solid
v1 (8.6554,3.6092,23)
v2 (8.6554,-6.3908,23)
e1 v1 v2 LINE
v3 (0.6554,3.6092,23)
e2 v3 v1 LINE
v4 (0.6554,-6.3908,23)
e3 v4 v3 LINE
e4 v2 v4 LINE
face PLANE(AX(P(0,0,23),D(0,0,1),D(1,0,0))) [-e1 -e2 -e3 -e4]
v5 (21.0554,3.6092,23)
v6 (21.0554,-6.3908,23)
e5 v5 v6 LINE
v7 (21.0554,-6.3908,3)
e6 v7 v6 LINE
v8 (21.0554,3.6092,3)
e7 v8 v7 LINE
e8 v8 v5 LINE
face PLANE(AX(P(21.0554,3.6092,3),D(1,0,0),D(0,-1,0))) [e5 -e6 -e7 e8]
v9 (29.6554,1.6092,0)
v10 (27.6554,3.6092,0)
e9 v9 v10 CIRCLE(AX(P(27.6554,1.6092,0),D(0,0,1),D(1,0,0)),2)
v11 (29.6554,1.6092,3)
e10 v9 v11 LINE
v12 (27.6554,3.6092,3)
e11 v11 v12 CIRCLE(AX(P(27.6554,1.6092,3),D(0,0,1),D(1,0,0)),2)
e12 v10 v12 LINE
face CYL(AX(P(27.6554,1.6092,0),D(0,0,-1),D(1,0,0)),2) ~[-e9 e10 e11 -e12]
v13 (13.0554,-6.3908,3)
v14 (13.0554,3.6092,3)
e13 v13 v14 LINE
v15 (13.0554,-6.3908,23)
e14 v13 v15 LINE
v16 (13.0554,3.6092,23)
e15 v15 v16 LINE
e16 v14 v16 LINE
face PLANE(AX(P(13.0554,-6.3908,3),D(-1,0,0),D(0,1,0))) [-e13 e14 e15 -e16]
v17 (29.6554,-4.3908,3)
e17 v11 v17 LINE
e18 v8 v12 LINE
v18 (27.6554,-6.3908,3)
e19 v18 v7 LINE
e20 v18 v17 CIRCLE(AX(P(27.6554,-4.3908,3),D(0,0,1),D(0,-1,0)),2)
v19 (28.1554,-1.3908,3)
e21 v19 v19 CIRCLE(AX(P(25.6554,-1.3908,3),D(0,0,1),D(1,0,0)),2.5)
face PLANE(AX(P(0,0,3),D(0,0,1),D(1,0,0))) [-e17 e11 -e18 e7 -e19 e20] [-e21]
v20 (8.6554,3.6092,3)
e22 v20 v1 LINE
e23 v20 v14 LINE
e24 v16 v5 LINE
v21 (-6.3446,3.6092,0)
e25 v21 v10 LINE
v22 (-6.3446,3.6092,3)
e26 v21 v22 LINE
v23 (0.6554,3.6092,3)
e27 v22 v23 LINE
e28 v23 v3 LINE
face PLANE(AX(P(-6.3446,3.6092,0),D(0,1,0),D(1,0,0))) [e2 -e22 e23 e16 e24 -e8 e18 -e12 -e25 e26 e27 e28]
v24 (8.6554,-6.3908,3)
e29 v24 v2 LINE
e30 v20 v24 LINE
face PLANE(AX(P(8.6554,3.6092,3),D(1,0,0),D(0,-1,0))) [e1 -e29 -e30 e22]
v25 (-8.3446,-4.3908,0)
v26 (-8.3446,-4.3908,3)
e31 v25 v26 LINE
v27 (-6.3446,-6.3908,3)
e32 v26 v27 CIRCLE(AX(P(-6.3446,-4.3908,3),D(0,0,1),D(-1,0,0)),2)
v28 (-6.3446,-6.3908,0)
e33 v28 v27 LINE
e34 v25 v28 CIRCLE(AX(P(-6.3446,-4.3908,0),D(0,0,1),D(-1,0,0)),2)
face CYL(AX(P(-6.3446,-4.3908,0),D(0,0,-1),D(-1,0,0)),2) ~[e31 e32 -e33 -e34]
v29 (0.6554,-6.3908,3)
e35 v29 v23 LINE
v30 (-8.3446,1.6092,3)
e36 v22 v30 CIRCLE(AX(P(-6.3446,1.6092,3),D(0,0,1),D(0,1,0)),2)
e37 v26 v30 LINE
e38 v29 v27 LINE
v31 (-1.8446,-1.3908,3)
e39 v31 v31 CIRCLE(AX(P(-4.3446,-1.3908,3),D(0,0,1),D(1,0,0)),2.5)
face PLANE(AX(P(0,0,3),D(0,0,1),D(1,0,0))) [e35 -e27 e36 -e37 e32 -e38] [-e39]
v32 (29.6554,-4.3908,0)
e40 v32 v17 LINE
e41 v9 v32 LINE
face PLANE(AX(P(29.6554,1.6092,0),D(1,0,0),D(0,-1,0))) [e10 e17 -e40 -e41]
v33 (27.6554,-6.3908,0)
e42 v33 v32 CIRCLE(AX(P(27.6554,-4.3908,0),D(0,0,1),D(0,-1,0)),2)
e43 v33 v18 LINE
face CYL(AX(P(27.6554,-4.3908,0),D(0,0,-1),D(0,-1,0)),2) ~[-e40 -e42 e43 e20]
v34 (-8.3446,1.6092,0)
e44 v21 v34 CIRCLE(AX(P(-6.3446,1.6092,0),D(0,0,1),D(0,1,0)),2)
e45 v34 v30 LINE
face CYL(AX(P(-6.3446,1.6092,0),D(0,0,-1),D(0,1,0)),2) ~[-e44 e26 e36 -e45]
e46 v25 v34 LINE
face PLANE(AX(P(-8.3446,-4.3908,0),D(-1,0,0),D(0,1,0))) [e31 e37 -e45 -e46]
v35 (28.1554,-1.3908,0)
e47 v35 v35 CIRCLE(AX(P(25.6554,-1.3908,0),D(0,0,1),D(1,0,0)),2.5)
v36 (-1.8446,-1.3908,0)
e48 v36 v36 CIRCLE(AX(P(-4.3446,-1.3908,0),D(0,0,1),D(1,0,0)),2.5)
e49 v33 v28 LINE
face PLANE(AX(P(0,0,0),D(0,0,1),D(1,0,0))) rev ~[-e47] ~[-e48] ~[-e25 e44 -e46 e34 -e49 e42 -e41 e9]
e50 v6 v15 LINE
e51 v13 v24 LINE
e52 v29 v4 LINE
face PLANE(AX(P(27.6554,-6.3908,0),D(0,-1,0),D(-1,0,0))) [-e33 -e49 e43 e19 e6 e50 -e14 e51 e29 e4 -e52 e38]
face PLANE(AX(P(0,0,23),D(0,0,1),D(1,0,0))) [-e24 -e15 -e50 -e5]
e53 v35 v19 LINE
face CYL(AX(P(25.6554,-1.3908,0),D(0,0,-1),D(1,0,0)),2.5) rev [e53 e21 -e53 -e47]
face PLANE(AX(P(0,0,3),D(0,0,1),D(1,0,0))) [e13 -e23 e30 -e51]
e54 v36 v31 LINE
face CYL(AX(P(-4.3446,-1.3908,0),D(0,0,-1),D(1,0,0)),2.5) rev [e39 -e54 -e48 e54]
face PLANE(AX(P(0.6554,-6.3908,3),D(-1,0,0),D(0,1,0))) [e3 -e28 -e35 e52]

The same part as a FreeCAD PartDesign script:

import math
import FreeCAD as App
import Part
import Sketcher
from FreeCAD import Vector
Q = App.Units.Quantity

doc = App.newDocument("Part")
body = doc.addObject("PartDesign::Body", "Body")

# Sketch on XY plane
sketch1 = body.newObject("Sketcher::SketchObject", "Sketch")
sketch1.AttachmentSupport = (doc.getObject("XY_Plane"), [""])
sketch1.MapMode = "FlatFace"
sketch1.addGeometry([
    Part.LineSegment(Vector(27.7, 3.6, 0), Vector(-6.3, 3.6, 0)),  # 0
    Part.ArcOfCircle(Part.Circle(Vector(-6.3, 1.6, 0), Vector(0, 0, 1), 2), math.radians(90), math.radians(180)),  # 1
    Part.LineSegment(Vector(-8.3, 1.6, 0), Vector(-8.3, -4.4, 0)),  # 2
    Part.ArcOfCircle(Part.Circle(Vector(-6.3, -4.4, 0), Vector(0, 0, 1), 2), math.radians(180), math.radians(270)),  # 3
    Part.LineSegment(Vector(-6.3, -6.4, 0), Vector(27.7, -6.4, 0)),  # 4
    Part.ArcOfCircle(Part.Circle(Vector(27.7, -4.4, 0), Vector(0, 0, 1), 2), math.radians(-90), math.radians(0)),  # 5
    Part.LineSegment(Vector(29.7, -4.4, 0), Vector(29.7, 1.6, 0)),  # 6
    Part.ArcOfCircle(Part.Circle(Vector(27.7, 1.6, 0), Vector(0, 0, 1), 2), math.radians(0), math.radians(90)),  # 7
    Part.Circle(Vector(-4.3, -1.4, 0), Vector(0, 0, 1), 2.5),  # 8
    Part.Circle(Vector(25.7, -1.4, 0), Vector(0, 0, 1), 2.5),  # 9
], False)
sketch1.addConstraint([
    Sketcher.Constraint("Tangent", 0, 2, 1, 1),
    Sketcher.Constraint("Tangent", 1, 2, 2, 1),
    Sketcher.Constraint("Tangent", 2, 2, 3, 1),
    Sketcher.Constraint("Tangent", 3, 2, 4, 1),
    Sketcher.Constraint("Tangent", 4, 2, 5, 1),
    Sketcher.Constraint("Tangent", 5, 2, 6, 1),
    Sketcher.Constraint("Tangent", 6, 2, 7, 1),
    Sketcher.Constraint("Tangent", 7, 2, 0, 1),
    Sketcher.Constraint("Horizontal", 0),
    Sketcher.Constraint("Vertical", 2),
    Sketcher.Constraint("Horizontal", 4),
    Sketcher.Constraint("Vertical", 6),
    Sketcher.Constraint("Equal", 1, 3),
    Sketcher.Constraint("Equal", 3, 5),
    Sketcher.Constraint("Equal", 5, 7),
    Sketcher.Constraint("Equal", 8, 9),
    Sketcher.Constraint("Horizontal", 8, 3, 9, 3),
    Sketcher.Constraint("Diameter", 8, Q("5 mm")),
    Sketcher.Constraint("Radius", 1, Q("2 mm")),
    Sketcher.Constraint("DistanceX", 1, 3, 8, 3, Q("2 mm")),
    Sketcher.Constraint("DistanceX", 9, 3, 5, 3, Q("2 mm")),
    Sketcher.Constraint("DistanceY", 8, 3, 0, 2, Q("5 mm")),
    Sketcher.Constraint("DistanceY", 3, 2, 8, 3, Q("5 mm")),
    Sketcher.Constraint("DistanceX", 0, 2, 0, 1, Q("34 mm")),
    Sketcher.Constraint("DistanceX", 1, 3, -1, 1, Q("6.3446 mm")),
    Sketcher.Constraint("DistanceY", -1, 1, 1, 3, Q("1.6092 mm")),
])
pad1 = body.newObject("PartDesign::Pad", "Pad")
pad1.Profile = sketch1
pad1.Length = 3

# Sketch on XY plane
sketch2 = body.newObject("Sketcher::SketchObject", "Sketch001")
sketch2.AttachmentSupport = (doc.getObject("XY_Plane"), [""])
sketch2.MapMode = "FlatFace"
sketch2.AttachmentOffset = App.Placement(Vector(0, 0, 3), App.Rotation())
sketch2.addGeometry([
    Part.LineSegment(Vector(9, 4, 0), Vector(1, 4, 0)),  # 0
    Part.LineSegment(Vector(1, 4, 0), Vector(1, -6, 0)),  # 1
    Part.LineSegment(Vector(1, -6, 0), Vector(9, -6, 0)),  # 2
    Part.LineSegment(Vector(9, -6, 0), Vector(9, 4, 0)),  # 3
    Part.LineSegment(Vector(21, 4, 0), Vector(13, 4, 0)),  # 4
    Part.LineSegment(Vector(13, 4, 0), Vector(13, -6, 0)),  # 5
    Part.LineSegment(Vector(13, -6, 0), Vector(21, -6, 0)),  # 6
    Part.LineSegment(Vector(21, -6, 0), Vector(21, 4, 0)),  # 7
], False)
sketch2.addConstraint([
    Sketcher.Constraint("Coincident", 0, 2, 1, 1),
    Sketcher.Constraint("Coincident", 1, 2, 2, 1),
    Sketcher.Constraint("Coincident", 2, 2, 3, 1),
    Sketcher.Constraint("Coincident", 3, 2, 0, 1),
    Sketcher.Constraint("Coincident", 4, 2, 5, 1),
    Sketcher.Constraint("Coincident", 5, 2, 6, 1),
    Sketcher.Constraint("Coincident", 6, 2, 7, 1),
    Sketcher.Constraint("Coincident", 7, 2, 4, 1),
    Sketcher.Constraint("Horizontal", 0),
    Sketcher.Constraint("Vertical", 1),
    Sketcher.Constraint("Horizontal", 2),
    Sketcher.Constraint("Vertical", 3),
    Sketcher.Constraint("Horizontal", 4),
    Sketcher.Constraint("Vertical", 5),
    Sketcher.Constraint("Horizontal", 6),
    Sketcher.Constraint("Vertical", 7),
    Sketcher.Constraint("Horizontal", 3, 2, 4, 2),
    Sketcher.Constraint("Horizontal", 2, 2, 5, 2),
    Sketcher.Constraint("Equal", 2, 4),
    Sketcher.Constraint("DistanceX", 0, 2, 0, 1, Q("8 mm")),
    Sketcher.Constraint("DistanceY", 1, 2, 1, 1, Q("10 mm")),
    Sketcher.Constraint("DistanceX", 3, 2, 4, 2, Q("4.4 mm")),
    Sketcher.Constraint("DistanceX", -1, 1, 0, 2, Q("0.6554 mm")),
    Sketcher.Constraint("DistanceY", -1, 1, 0, 2, Q("3.6092 mm")),
])
pad2 = body.newObject("PartDesign::Pad", "Pad001")
pad2.Profile = sketch2
pad2.Length = 20

doc.recompute()
